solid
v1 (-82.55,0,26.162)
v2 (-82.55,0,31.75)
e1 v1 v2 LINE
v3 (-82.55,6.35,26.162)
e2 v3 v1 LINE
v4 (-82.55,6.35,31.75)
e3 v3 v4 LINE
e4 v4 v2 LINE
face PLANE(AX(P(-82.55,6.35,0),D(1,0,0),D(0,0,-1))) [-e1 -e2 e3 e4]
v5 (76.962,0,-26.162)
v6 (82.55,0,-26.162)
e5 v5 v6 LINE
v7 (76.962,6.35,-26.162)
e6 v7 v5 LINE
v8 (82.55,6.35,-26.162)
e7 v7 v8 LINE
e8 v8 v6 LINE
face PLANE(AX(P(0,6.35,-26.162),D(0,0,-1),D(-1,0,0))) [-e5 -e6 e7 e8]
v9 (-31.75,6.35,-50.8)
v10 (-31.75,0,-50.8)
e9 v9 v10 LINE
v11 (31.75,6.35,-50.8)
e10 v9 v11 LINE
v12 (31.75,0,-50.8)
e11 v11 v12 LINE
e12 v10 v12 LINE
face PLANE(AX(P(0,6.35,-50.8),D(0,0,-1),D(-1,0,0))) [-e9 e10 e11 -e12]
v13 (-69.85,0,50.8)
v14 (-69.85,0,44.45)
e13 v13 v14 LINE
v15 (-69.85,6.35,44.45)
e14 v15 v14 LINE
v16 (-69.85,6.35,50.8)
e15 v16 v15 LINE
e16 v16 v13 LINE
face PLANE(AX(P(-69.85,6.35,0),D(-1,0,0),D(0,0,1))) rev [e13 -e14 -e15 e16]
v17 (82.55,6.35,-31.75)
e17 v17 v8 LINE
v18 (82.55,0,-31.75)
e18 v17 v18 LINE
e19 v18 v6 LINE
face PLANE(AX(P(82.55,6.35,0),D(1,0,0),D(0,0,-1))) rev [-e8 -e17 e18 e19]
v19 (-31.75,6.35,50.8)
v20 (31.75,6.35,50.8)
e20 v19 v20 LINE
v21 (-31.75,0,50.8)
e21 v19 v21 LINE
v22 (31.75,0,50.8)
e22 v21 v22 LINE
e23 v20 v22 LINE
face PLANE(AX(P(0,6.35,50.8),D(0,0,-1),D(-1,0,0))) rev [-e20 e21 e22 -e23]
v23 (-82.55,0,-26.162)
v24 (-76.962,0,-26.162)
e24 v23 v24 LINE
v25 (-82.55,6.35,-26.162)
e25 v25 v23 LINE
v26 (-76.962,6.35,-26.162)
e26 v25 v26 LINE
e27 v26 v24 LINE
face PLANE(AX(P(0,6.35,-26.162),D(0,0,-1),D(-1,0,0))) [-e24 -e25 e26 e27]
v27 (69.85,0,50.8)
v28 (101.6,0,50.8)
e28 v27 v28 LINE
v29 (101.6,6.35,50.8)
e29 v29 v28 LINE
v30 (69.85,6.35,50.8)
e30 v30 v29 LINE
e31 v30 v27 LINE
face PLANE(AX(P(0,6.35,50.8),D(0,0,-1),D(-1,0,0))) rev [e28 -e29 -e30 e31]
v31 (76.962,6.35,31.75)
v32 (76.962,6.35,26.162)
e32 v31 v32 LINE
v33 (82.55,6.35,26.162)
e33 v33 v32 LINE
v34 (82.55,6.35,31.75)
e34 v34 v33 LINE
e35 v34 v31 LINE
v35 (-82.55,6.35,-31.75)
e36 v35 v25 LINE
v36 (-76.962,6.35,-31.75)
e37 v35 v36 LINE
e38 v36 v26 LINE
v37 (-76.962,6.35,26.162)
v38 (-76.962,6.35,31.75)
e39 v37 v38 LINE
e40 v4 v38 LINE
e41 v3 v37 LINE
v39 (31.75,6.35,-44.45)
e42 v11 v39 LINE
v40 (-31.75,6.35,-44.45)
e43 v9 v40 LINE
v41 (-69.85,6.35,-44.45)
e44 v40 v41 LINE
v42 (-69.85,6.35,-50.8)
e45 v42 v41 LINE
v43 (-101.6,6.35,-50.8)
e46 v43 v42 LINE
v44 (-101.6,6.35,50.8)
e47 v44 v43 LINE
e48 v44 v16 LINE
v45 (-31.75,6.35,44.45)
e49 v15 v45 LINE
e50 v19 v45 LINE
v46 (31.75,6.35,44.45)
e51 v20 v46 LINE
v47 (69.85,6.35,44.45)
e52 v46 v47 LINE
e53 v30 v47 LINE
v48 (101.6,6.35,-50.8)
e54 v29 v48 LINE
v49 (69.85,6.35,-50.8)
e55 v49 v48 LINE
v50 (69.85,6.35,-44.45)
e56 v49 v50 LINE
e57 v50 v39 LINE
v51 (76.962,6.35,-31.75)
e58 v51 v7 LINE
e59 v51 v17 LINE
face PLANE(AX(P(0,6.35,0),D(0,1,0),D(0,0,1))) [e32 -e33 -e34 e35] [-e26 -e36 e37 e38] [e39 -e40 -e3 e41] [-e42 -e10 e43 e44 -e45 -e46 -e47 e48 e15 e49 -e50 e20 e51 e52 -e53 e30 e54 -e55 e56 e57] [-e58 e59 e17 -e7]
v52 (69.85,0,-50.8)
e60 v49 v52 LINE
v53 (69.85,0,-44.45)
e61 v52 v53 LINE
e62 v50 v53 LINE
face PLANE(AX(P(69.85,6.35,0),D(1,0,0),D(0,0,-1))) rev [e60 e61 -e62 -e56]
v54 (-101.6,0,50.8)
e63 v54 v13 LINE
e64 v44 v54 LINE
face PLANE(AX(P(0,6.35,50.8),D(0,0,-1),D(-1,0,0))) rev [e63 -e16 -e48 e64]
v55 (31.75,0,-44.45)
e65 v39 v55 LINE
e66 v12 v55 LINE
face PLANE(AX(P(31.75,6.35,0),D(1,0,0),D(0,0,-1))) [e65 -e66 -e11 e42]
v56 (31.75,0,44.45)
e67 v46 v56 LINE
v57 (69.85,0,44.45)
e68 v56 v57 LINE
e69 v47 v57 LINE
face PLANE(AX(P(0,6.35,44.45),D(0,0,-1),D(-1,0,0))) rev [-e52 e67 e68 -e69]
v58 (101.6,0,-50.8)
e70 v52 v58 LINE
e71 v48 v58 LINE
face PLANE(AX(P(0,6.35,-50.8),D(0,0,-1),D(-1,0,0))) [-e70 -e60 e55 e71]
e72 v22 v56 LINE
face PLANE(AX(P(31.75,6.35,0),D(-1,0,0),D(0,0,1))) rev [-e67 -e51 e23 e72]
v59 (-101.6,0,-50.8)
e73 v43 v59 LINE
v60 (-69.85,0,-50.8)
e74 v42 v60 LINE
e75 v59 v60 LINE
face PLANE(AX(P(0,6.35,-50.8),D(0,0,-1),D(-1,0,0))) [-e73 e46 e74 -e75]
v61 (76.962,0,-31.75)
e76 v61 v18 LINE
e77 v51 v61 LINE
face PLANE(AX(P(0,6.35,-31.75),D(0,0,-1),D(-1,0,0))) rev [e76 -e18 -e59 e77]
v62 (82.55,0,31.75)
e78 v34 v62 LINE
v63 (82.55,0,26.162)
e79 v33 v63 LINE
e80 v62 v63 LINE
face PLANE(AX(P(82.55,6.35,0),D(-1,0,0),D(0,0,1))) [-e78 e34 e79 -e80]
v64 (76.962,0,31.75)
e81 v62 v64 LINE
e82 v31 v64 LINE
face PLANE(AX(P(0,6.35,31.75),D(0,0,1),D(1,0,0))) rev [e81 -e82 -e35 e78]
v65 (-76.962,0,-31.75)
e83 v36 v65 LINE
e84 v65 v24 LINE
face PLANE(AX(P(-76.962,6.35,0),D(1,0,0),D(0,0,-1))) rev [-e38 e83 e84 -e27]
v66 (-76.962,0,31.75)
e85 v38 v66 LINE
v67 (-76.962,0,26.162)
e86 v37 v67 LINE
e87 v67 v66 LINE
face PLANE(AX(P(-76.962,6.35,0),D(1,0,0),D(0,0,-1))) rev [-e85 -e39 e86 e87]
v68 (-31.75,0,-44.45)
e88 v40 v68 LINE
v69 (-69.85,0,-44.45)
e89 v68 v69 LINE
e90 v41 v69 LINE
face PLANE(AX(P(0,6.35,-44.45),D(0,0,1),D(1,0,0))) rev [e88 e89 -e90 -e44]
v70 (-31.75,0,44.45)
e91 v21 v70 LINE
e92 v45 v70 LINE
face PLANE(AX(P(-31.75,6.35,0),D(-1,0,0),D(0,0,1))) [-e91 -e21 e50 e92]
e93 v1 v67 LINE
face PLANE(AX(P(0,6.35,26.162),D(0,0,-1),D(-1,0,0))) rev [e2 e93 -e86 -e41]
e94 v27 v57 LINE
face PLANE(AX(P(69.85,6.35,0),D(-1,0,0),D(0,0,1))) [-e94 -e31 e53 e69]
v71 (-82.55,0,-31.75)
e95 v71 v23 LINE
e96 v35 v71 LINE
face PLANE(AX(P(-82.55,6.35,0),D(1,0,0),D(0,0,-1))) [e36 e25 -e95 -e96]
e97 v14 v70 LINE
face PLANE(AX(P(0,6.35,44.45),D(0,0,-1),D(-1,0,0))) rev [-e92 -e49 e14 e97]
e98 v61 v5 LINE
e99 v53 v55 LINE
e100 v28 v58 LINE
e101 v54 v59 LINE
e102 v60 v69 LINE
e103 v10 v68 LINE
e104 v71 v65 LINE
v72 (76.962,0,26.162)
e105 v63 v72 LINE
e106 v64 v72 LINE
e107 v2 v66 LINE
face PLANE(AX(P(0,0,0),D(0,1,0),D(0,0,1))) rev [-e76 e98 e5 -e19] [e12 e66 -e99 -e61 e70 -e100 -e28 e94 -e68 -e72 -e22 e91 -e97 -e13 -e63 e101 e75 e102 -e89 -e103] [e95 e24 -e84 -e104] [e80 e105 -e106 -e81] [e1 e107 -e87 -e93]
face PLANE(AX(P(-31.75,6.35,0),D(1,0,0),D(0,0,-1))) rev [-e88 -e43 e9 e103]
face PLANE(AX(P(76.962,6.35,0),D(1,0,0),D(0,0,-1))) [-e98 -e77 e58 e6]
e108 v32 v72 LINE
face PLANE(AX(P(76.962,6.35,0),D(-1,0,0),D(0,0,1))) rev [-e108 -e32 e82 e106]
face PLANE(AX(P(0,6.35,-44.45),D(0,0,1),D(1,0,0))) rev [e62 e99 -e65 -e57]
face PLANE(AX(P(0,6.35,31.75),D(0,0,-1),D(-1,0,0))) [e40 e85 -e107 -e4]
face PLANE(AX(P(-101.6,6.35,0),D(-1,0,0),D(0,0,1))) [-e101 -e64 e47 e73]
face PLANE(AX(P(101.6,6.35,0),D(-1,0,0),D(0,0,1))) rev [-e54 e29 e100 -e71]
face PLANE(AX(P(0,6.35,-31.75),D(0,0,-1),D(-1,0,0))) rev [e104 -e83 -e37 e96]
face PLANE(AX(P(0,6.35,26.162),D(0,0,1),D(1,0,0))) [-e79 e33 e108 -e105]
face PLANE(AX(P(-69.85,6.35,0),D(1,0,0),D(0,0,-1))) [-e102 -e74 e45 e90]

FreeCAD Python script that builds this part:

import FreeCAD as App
import Part
import Sketcher
from FreeCAD import Vector
Q = App.Units.Quantity

doc = App.newDocument("Part")
body = doc.addObject("PartDesign::Body", "Body")

sketch1 = doc.addObject("Sketcher::SketchObject", "Sketch")
body.addObject(sketch1)
sketch1.AttachmentSupport = (doc.XZ_Plane, [""])
sketch1.MapMode = "FlatFace"
sketch1.addGeometry([
    Part.LineSegment(Vector(-101.6, -50.8, 0), Vector(-101.6, 50.8, 0)),
    Part.LineSegment(Vector(-101.6, 50.8, 0), Vector(-69.85, 50.8, 0)),
    Part.LineSegment(Vector(-69.85, 50.8, 0), Vector(-69.85, 44.45, 0)),
    Part.LineSegment(Vector(-69.85, 44.45, 0), Vector(-31.75, 44.45, 0)),
    Part.LineSegment(Vector(-31.75, 44.45, 0), Vector(-31.75, 50.8, 0)),
    Part.LineSegment(Vector(-31.75, 50.8, 0), Vector(31.75, 50.8, 0)),
    Part.LineSegment(Vector(31.75, 50.8, 0), Vector(31.75, 44.45, 0)),
    Part.LineSegment(Vector(31.75, 44.45, 0), Vector(69.85, 44.45, 0)),
    Part.LineSegment(Vector(69.85, 44.45, 0), Vector(69.85, 50.8, 0)),
    Part.LineSegment(Vector(69.85, 50.8, 0), Vector(101.6, 50.8, 0)),
    Part.LineSegment(Vector(101.6, 50.8, 0), Vector(101.6, -50.8, 0)),
    Part.LineSegment(Vector(101.6, -50.8, 0), Vector(69.85, -50.8, 0)),
    Part.LineSegment(Vector(69.85, -50.8, 0), Vector(69.85, -44.45, 0)),
    Part.LineSegment(Vector(69.85, -44.45, 0), Vector(31.75, -44.45, 0)),
    Part.LineSegment(Vector(31.75, -44.45, 0), Vector(31.75, -50.8, 0)),
    Part.LineSegment(Vector(31.75, -50.8, 0), Vector(-31.75, -50.8, 0)),
    Part.LineSegment(Vector(-31.75, -50.8, 0), Vector(-31.75, -44.45, 0)),
    Part.LineSegment(Vector(-31.75, -44.45, 0), Vector(-69.85, -44.45, 0)),
    Part.LineSegment(Vector(-69.85, -44.45, 0), Vector(-69.85, -50.8, 0)),
    Part.LineSegment(Vector(-69.85, -50.8, 0), Vector(-101.6, -50.8, 0)),
    Part.LineSegment(Vector(-76.962, 31.75, 0), Vector(-82.55, 31.75, 0)),
    Part.LineSegment(Vector(-82.55, 31.75, 0), Vector(-82.55, 26.162, 0)),
    Part.LineSegment(Vector(-82.55, 26.162, 0), Vector(-76.962, 26.162, 0)),
    Part.LineSegment(Vector(-76.962, 26.162, 0), Vector(-76.962, 31.75, 0)),
    Part.LineSegment(Vector(82.55, 31.75, 0), Vector(76.962, 31.75, 0)),
    Part.LineSegment(Vector(76.962, 31.75, 0), Vector(76.962, 26.162, 0)),
    Part.LineSegment(Vector(76.962, 26.162, 0), Vector(82.55, 26.162, 0)),
    Part.LineSegment(Vector(82.55, 26.162, 0), Vector(82.55, 31.75, 0)),
    Part.LineSegment(Vector(-76.962, -26.162, 0), Vector(-82.55, -26.162, 0)),
    Part.LineSegment(Vector(-82.55, -26.162, 0), Vector(-82.55, -31.75, 0)),
    Part.LineSegment(Vector(-82.55, -31.75, 0), Vector(-76.962, -31.75, 0)),
    Part.LineSegment(Vector(-76.962, -31.75, 0), Vector(-76.962, -26.162, 0)),
    Part.LineSegment(Vector(82.55, -26.162, 0), Vector(76.962, -26.162, 0)),
    Part.LineSegment(Vector(76.962, -26.162, 0), Vector(76.962, -31.75, 0)),
    Part.LineSegment(Vector(76.962, -31.75, 0), Vector(82.55, -31.75, 0)),
    Part.LineSegment(Vector(82.55, -31.75, 0), Vector(82.55, -26.162, 0)),
], False)
sketch1.addConstraint([
    Sketcher.Constraint("Coincident", 0, 2, 1, 1),
    Sketcher.Constraint("Coincident", 1, 2, 2, 1),
    Sketcher.Constraint("Coincident", 2, 2, 3, 1),
    Sketcher.Constraint("Coincident", 3, 2, 4, 1),
    Sketcher.Constraint("Coincident", 4, 2, 5, 1),
    Sketcher.Constraint("Coincident", 5, 2, 6, 1),
    Sketcher.Constraint("Coincident", 6, 2, 7, 1),
    Sketcher.Constraint("Coincident", 7, 2, 8, 1),
    Sketcher.Constraint("Coincident", 8, 2, 9, 1),
    Sketcher.Constraint("Coincident", 9, 2, 10, 1),
    Sketcher.Constraint("Coincident", 10, 2, 11, 1),
    Sketcher.Constraint("Coincident", 11, 2, 12, 1),
    Sketcher.Constraint("Coincident", 12, 2, 13, 1),
    Sketcher.Constraint("Coincident", 13, 2, 14, 1),
    Sketcher.Constraint("Coincident", 14, 2, 15, 1),
    Sketcher.Constraint("Coincident", 15, 2, 16, 1),
    Sketcher.Constraint("Coincident", 16, 2, 17, 1),
    Sketcher.Constraint("Coincident", 17, 2, 18, 1),
    Sketcher.Constraint("Coincident", 18, 2, 19, 1),
    Sketcher.Constraint("Coincident", 19, 2, 0, 1),
    Sketcher.Constraint("Coincident", 20, 2, 21, 1),
    Sketcher.Constraint("Coincident", 21, 2, 22, 1),
    Sketcher.Constraint("Coincident", 22, 2, 23, 1),
    Sketcher.Constraint("Coincident", 23, 2, 20, 1),
    Sketcher.Constraint("Coincident", 24, 2, 25, 1),
    Sketcher.Constraint("Coincident", 25, 2, 26, 1),
    Sketcher.Constraint("Coincident", 26, 2, 27, 1),
    Sketcher.Constraint("Coincident", 27, 2, 24, 1),
    Sketcher.Constraint("Coincident", 28, 2, 29, 1),
    Sketcher.Constraint("Coincident", 29, 2, 30, 1),
    Sketcher.Constraint("Coincident", 30, 2, 31, 1),
    Sketcher.Constraint("Coincident", 31, 2, 28, 1),
    Sketcher.Constraint("Coincident", 32, 2, 33, 1),
    Sketcher.Constraint("Coincident", 33, 2, 34, 1),
    Sketcher.Constraint("Coincident", 34, 2, 35, 1),
    Sketcher.Constraint("Coincident", 35, 2, 32, 1),
    Sketcher.Constraint("Vertical", 0),
    Sketcher.Constraint("Horizontal", 1),
    Sketcher.Constraint("Vertical", 2),
    Sketcher.Constraint("Horizontal", 3),
    Sketcher.Constraint("Vertical", 4),
    Sketcher.Constraint("Horizontal", 5),
    Sketcher.Constraint("Vertical", 6),
    Sketcher.Constraint("Horizontal", 7),
    Sketcher.Constraint("Vertical", 8),
    Sketcher.Constraint("Horizontal", 9),
    Sketcher.Constraint("Vertical", 10),
    Sketcher.Constraint("Horizontal", 11),
    Sketcher.Constraint("Vertical", 12),
    Sketcher.Constraint("Horizontal", 13),
    Sketcher.Constraint("Vertical", 14),
    Sketcher.Constraint("Horizontal", 15),
    Sketcher.Constraint("Vertical", 16),
    Sketcher.Constraint("Horizontal", 17),
    Sketcher.Constraint("Vertical", 18),
    Sketcher.Constraint("Horizontal", 19),
    Sketcher.Constraint("Horizontal", 20),
    Sketcher.Constraint("Vertical", 21),
    Sketcher.Constraint("Horizontal", 22),
    Sketcher.Constraint("Vertical", 23),
    Sketcher.Constraint("Horizontal", 24),
    Sketcher.Constraint("Vertical", 25),
    Sketcher.Constraint("Horizontal", 26),
    Sketcher.Constraint("Vertical", 27),
    Sketcher.Constraint("Horizontal", 28),
    Sketcher.Constraint("Vertical", 29),
    Sketcher.Constraint("Horizontal", 30),
    Sketcher.Constraint("Vertical", 31),
    Sketcher.Constraint("Horizontal", 32),
    Sketcher.Constraint("Vertical", 33),
    Sketcher.Constraint("Horizontal", 34),
    Sketcher.Constraint("Vertical", 35),
    Sketcher.Constraint("Symmetric", 0, 2, 10, 2, -1, 1),
    Sketcher.Constraint("Symmetric", 2, 2, 12, 2, -1, 1),
    Sketcher.Constraint("Symmetric", 4, 2, 14, 2, -1, 1),
    Sketcher.Constraint("Symmetric", 6, 2, 16, 2, -1, 1),
    Sketcher.Constraint("Symmetric", 8, 2, 18, 2, -1, 1),
    Sketcher.Constraint("Symmetric", 26, 2, 28, 2, -1, 1),
    Sketcher.Constraint("Symmetric", 24, 2, 30, 2, -1, 1),
    Sketcher.Constraint("Symmetric", 22, 2, 32, 2, -1, 1),
    Sketcher.Constraint("Symmetric", 20, 2, 34, 2, -1, 1),
    Sketcher.Constraint("Symmetric", 3, 2, 6, 2, -2),
    Sketcher.Constraint("Symmetric", 1, 2, 8, 2, -2),
    Sketcher.Constraint("Symmetric", 23, 2, 24, 2, -2),
    Sketcher.Constraint("Symmetric", 21, 2, 26, 2, -2),
    Sketcher.Constraint("Horizontal", 1, 2, 4, 2),
    Sketcher.Constraint("Equal", 34, 21),
    Sketcher.Constraint("DistanceY", 0, 1, 0, 2, Q("4 in")),
    Sketcher.Constraint("DistanceX", 3, 1, 3, 2, Q("1.5 in")),
    Sketcher.Constraint("DistanceX", 5, 1, 5, 2, Q("2.5 in")),
    Sketcher.Constraint("DistanceX", 0, 2, -1, 1, Q("4 in")),
    Sketcher.Constraint("DistanceX", 20, 2, 3, 2, Q("2 in")),
    Sketcher.Constraint("DistanceX", 20, 2, 20, 1, Q("0.22 in")),
    Sketcher.Constraint("DistanceY", 2, 2, 2, 1, Q("0.25 in")),
    Sketcher.Constraint("DistanceY", 20, 2, 2, 2, Q("0.5 in")),
])
pad1 = doc.addObject("PartDesign::Pad", "Pad")
body.addObject(pad1)
pad1.Profile = sketch1
pad1.Length = Q("0.25 in")
pad1.Reversed = True

doc.recompute()
